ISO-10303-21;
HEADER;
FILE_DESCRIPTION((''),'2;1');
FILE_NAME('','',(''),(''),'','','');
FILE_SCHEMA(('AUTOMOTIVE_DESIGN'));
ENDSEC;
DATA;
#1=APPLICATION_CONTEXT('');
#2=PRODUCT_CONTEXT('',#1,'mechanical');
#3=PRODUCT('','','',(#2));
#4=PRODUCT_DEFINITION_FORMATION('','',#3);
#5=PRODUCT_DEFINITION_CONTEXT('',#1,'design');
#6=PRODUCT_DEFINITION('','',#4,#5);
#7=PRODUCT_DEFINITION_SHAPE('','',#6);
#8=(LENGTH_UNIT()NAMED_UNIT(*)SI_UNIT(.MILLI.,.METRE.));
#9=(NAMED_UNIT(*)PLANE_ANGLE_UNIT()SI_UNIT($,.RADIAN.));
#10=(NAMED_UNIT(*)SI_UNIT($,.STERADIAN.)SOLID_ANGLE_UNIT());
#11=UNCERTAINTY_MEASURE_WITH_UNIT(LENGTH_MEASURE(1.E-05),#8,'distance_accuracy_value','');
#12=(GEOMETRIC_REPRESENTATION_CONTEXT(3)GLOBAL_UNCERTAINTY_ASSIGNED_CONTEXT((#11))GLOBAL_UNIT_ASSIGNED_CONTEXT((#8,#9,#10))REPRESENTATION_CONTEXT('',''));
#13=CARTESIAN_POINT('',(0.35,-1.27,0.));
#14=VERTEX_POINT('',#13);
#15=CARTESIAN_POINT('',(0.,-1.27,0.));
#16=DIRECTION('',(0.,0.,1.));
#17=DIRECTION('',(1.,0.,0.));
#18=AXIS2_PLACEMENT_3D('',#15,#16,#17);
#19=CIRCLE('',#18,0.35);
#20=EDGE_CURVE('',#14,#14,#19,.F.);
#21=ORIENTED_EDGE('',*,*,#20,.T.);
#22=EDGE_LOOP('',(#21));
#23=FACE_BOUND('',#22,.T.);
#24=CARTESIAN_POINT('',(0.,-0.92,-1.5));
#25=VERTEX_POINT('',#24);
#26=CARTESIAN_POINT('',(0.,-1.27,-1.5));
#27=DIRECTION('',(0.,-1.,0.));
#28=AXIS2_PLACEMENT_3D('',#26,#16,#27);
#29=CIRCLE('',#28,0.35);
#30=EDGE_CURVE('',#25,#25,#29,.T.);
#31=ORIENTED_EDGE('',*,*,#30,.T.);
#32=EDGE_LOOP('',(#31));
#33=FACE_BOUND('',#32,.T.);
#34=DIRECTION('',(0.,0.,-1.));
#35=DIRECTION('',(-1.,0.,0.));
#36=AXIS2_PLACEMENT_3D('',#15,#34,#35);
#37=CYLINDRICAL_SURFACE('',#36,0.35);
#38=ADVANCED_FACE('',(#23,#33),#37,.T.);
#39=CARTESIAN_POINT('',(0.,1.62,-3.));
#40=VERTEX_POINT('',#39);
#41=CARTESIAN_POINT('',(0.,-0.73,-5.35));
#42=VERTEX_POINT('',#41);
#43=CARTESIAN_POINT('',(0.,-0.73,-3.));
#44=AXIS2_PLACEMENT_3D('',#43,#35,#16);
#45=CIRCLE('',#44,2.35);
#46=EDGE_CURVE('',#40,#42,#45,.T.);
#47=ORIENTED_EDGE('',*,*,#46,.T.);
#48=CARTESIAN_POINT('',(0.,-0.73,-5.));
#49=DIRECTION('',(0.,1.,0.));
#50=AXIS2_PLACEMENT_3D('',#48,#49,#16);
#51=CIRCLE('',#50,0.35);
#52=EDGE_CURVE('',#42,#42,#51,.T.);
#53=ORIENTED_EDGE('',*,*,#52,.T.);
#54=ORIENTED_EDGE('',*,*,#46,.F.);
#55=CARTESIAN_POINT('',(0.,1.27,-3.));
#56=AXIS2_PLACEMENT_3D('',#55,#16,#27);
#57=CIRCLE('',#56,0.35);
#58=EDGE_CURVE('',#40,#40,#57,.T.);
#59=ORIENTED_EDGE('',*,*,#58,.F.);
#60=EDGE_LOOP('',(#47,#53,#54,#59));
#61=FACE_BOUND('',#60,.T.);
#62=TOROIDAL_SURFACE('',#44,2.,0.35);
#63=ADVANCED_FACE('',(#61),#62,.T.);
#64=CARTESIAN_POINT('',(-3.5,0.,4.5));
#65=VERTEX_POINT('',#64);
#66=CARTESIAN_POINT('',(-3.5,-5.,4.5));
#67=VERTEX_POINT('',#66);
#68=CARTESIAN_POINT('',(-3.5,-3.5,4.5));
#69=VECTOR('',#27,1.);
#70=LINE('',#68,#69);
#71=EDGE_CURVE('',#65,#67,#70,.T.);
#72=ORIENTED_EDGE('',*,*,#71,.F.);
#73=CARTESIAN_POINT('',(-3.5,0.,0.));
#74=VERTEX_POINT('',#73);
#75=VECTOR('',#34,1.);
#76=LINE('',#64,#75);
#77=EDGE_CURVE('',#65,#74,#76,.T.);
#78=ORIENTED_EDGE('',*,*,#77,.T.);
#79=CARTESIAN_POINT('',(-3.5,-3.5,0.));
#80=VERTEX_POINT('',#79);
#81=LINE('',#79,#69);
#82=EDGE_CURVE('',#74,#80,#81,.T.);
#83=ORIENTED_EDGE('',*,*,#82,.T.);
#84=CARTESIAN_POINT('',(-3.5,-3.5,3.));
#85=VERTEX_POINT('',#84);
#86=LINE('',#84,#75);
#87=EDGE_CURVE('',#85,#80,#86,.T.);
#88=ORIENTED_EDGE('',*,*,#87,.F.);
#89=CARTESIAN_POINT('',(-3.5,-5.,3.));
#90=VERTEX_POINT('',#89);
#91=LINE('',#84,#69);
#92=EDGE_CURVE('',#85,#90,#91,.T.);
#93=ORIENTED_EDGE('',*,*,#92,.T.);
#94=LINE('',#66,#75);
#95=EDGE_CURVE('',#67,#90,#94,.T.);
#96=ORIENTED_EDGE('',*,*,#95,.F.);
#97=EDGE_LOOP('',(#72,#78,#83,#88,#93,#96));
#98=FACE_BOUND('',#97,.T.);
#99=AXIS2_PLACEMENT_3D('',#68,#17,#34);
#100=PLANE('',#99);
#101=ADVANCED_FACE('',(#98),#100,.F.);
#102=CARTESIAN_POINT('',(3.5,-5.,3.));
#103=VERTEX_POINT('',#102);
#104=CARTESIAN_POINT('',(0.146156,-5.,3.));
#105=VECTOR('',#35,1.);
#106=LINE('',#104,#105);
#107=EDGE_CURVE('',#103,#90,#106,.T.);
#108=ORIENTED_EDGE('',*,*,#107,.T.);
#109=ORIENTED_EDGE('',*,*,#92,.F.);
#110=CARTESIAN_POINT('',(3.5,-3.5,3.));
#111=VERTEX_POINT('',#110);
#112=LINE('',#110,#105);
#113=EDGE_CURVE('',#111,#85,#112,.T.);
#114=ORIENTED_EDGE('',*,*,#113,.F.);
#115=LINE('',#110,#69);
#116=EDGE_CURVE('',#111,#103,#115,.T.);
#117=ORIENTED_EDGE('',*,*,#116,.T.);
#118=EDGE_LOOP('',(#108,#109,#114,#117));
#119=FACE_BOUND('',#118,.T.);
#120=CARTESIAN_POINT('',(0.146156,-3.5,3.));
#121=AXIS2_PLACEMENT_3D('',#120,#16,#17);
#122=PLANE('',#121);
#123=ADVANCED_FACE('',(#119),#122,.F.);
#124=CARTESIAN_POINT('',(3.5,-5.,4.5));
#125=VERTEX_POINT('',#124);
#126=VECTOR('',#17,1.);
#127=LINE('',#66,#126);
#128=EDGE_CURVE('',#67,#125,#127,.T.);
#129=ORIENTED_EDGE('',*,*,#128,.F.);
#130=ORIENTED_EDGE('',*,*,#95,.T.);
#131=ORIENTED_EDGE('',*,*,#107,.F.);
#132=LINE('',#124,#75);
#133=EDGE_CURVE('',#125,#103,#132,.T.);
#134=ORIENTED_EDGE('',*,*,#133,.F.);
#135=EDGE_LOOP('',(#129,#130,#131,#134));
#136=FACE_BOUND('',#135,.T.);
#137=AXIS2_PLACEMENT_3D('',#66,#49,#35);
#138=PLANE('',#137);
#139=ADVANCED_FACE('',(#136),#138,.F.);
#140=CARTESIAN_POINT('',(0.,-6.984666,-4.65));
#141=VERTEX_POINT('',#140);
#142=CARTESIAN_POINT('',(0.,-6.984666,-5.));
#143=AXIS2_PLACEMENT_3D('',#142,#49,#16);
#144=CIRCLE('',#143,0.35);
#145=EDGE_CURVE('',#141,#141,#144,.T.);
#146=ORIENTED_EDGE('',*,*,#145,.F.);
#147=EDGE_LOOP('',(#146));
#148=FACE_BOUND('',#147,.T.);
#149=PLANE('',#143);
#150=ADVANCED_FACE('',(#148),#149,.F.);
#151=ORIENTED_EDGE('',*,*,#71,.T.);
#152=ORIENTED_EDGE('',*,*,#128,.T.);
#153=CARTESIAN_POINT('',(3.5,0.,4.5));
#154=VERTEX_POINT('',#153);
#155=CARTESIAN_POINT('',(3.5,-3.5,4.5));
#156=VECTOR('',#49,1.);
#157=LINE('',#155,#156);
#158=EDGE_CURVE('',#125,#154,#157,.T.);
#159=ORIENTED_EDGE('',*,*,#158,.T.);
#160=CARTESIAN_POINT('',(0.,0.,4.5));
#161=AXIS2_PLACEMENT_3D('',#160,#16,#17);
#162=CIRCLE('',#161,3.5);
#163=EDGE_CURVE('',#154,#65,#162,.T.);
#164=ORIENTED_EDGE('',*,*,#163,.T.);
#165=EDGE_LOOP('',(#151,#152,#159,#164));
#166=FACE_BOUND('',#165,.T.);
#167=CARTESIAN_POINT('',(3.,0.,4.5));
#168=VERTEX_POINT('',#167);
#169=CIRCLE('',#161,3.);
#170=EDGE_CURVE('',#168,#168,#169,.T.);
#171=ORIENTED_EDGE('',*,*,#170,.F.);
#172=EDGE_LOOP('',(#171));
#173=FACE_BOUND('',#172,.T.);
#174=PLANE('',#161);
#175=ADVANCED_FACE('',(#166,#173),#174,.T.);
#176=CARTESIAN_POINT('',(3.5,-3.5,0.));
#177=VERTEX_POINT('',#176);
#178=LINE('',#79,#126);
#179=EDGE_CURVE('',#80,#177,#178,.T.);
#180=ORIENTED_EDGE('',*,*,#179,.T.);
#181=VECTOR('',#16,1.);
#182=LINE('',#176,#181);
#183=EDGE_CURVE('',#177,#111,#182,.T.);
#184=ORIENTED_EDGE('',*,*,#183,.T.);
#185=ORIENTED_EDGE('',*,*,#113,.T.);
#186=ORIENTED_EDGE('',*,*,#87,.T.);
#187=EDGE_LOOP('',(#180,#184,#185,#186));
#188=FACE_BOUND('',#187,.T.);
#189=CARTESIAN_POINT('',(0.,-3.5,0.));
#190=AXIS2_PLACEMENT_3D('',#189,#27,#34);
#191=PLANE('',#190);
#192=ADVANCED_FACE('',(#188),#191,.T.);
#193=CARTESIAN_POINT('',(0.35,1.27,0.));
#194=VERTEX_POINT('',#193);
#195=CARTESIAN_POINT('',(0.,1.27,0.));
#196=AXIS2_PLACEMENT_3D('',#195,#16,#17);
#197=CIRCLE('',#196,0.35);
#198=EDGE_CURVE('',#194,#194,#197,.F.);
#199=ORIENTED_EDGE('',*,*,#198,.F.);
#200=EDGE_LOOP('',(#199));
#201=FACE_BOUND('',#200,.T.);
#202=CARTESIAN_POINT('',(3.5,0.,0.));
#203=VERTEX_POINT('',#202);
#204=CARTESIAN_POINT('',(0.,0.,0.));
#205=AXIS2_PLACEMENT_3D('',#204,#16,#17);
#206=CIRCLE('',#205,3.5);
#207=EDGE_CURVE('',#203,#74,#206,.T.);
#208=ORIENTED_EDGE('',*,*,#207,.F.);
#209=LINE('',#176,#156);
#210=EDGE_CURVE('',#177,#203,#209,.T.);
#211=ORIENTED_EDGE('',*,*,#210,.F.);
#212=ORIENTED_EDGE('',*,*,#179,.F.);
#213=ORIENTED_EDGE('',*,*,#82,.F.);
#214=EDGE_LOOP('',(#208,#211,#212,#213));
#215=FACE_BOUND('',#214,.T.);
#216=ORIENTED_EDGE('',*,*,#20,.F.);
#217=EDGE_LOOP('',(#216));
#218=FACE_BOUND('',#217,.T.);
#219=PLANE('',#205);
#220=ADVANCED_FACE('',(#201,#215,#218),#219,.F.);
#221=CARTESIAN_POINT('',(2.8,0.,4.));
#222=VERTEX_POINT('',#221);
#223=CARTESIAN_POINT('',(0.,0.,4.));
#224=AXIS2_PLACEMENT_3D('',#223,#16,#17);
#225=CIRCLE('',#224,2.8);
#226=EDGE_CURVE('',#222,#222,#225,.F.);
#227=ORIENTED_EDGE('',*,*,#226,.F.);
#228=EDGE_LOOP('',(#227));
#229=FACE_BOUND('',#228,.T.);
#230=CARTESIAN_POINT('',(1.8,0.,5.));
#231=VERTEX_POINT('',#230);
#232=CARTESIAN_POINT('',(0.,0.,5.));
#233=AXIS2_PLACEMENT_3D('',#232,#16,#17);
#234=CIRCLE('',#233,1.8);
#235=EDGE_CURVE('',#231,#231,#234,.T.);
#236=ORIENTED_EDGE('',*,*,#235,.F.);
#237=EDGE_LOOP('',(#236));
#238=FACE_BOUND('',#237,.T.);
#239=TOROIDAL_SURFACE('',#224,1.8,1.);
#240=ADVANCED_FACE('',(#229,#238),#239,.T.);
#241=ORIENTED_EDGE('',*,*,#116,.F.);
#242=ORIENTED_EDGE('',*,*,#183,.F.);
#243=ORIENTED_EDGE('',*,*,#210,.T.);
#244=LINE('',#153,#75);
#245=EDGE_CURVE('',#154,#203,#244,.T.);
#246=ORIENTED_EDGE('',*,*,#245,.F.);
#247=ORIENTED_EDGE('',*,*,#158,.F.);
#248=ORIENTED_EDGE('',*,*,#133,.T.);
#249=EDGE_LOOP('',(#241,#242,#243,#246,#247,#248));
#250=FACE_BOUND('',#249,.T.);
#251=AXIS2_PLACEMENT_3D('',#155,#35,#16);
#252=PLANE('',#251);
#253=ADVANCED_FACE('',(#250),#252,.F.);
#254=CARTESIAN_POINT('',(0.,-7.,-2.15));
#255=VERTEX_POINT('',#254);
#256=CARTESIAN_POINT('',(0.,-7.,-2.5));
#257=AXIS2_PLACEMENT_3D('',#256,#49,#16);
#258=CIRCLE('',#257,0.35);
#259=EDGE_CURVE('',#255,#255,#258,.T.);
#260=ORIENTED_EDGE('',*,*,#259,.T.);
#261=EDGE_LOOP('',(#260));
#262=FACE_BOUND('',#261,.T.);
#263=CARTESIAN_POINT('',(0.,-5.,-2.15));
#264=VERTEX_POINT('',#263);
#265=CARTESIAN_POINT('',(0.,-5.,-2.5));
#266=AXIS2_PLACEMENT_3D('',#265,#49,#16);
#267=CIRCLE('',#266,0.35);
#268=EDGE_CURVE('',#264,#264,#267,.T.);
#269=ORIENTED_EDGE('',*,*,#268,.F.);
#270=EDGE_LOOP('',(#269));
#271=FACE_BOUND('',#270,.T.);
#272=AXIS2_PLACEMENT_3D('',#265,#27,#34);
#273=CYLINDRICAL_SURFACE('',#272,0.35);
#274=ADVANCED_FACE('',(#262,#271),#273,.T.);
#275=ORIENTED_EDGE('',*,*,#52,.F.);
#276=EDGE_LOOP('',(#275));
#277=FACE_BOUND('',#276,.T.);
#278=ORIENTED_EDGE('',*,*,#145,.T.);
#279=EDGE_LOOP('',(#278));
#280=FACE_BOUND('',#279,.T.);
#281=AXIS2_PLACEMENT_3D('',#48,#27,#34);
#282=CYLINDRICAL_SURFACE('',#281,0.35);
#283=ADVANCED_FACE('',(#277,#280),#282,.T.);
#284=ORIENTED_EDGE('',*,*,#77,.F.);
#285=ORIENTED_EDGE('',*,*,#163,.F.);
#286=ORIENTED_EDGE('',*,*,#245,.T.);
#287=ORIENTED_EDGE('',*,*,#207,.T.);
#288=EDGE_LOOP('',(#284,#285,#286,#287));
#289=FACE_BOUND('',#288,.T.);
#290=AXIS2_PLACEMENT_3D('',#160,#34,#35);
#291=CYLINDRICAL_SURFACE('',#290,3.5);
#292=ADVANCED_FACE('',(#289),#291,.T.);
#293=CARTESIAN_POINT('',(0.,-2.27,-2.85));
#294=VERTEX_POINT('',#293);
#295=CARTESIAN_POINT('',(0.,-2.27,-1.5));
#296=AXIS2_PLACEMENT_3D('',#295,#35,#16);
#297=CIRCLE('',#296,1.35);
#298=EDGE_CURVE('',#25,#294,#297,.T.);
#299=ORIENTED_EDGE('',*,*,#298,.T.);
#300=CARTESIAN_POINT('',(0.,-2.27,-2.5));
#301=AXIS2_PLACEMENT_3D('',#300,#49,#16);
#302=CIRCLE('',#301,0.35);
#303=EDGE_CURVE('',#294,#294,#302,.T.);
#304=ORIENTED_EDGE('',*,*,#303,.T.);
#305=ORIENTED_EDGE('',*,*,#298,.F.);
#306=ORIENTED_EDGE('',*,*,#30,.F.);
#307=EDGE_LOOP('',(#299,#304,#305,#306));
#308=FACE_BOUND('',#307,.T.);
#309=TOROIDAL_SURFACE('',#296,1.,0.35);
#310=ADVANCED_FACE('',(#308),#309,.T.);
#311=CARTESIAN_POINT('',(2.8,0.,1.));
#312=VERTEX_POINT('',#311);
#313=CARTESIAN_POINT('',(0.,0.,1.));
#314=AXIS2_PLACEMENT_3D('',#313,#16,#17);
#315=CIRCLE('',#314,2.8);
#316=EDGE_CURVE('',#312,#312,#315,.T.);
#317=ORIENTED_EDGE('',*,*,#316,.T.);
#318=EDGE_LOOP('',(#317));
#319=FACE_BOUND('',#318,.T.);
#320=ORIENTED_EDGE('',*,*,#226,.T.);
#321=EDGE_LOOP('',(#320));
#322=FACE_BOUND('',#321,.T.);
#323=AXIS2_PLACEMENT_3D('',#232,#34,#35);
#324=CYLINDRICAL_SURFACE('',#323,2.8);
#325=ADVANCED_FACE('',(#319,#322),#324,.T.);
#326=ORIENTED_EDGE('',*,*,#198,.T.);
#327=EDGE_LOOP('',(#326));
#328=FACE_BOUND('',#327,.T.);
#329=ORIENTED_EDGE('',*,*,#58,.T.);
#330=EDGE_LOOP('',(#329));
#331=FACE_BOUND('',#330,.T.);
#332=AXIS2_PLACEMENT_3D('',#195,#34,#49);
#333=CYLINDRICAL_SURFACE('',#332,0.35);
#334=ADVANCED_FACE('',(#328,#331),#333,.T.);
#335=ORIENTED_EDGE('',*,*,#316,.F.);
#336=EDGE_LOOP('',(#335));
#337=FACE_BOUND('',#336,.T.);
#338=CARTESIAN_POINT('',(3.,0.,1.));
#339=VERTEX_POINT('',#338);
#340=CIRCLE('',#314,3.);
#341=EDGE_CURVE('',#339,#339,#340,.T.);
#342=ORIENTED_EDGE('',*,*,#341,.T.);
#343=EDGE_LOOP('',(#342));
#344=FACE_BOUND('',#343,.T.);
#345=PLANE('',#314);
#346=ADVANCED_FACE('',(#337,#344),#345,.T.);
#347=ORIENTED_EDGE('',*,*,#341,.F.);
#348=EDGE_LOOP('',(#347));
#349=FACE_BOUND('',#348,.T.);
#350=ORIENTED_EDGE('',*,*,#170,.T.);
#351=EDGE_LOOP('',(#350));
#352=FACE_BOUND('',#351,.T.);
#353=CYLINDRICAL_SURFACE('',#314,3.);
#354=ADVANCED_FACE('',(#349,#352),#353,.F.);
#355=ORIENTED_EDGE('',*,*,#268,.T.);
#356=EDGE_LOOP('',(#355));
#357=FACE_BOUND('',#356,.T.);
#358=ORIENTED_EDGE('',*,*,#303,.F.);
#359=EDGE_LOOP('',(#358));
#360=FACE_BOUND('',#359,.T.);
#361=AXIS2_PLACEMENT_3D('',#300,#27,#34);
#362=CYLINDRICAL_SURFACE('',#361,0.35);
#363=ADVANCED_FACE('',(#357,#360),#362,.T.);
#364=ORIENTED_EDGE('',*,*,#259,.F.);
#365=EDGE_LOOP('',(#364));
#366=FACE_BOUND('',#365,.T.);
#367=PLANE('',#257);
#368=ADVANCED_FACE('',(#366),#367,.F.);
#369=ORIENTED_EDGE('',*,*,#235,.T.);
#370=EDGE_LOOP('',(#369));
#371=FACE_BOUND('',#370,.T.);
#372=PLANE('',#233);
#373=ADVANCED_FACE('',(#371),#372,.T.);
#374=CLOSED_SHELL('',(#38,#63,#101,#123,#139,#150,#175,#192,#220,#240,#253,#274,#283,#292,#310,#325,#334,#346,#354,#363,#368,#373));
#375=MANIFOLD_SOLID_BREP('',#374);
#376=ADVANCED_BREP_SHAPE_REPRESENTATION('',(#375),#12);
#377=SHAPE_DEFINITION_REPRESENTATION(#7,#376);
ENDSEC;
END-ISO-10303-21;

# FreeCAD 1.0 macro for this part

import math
import FreeCAD as App
import Part
import Sketcher
Q = App.Units.Quantity


def edges_at(feature, points):
    """Names of the edges that pass closest to the given points."""
    edges = feature.Shape.Edges
    near = lambda p: min(range(len(edges)), key=lambda i: edges[i].distToShape(Part.Vertex(*p))[0])
    return sorted({f"Edge{near(p) + 1}" for p in points})

doc = App.newDocument("Part")
body = doc.addObject("PartDesign::Body", "Body")

sketch1 = doc.addObject("Sketcher::SketchObject", "Sketch")
body.addObject(sketch1)
sketch1.AttachmentSupport = (doc.XY_Plane, [""])
sketch1.MapMode = "FlatFace"
sketch1.addGeometry([
    Part.ArcOfCircle(Part.Circle(App.Vector(0, 0, 0), App.Vector(0, 0, 1), 3.5), math.radians(0), math.radians(180)),
    Part.LineSegment(App.Vector(-3.5, 0, 0), App.Vector(-3.5, -5, 0)),
    Part.LineSegment(App.Vector(-3.5, -5, 0), App.Vector(3.5, -5, 0)),
    Part.LineSegment(App.Vector(3.5, -5, 0), App.Vector(3.5, 0, 0)),
], False)
sketch1.addConstraint([
    Sketcher.Constraint("Tangent", 0, 2, 1, 1),
    Sketcher.Constraint("Coincident", 1, 2, 2, 1),
    Sketcher.Constraint("Coincident", 2, 2, 3, 1),
    Sketcher.Constraint("Tangent", 3, 2, 0, 1),
    Sketcher.Constraint("Vertical", 1),
    Sketcher.Constraint("Horizontal", 2),
    Sketcher.Constraint("Vertical", 3),
    Sketcher.Constraint("Coincident", 0, 3, -1, 1),
    Sketcher.Constraint("Radius", 0, Q("3.5 mm")),
    Sketcher.Constraint("DistanceY", 1, 2, 1, 1, Q("5 mm")),
])
pad1 = doc.addObject("PartDesign::Pad", "Pad")
body.addObject(pad1)
pad1.Profile = sketch1
pad1.Length = 4.5

sketch2 = doc.addObject("Sketcher::SketchObject", "Sketch001")
body.addObject(sketch2)
sketch2.AttachmentSupport = (doc.XY_Plane, [""])
sketch2.MapMode = "FlatFace"
sketch2.AttachmentOffset = App.Placement(App.Vector(0, 0, 4.5), App.Rotation())
sketch2.addGeometry(Part.Circle(App.Vector(0, 0, 0), App.Vector(0, 0, 1), 3), False)
sketch2.addConstraint([
    Sketcher.Constraint("Coincident", 0, 3, -1, 1),
    Sketcher.Constraint("Diameter", 0, Q("6 mm")),
])
pocket1 = doc.addObject("PartDesign::Pocket", "Pocket")
body.addObject(pocket1)
pocket1.Profile = sketch2
pocket1.Length = 3.5

sketch3 = doc.addObject("Sketcher::SketchObject", "Sketch002")
body.addObject(sketch3)
sketch3.AttachmentSupport = (doc.XY_Plane, [""])
sketch3.MapMode = "FlatFace"
sketch3.AttachmentOffset = App.Placement(App.Vector(0, 0, 1), App.Rotation())
sketch3.addGeometry(Part.Circle(App.Vector(0, 0, 0), App.Vector(0, 0, 1), 2.8), False)
sketch3.addConstraint([
    Sketcher.Constraint("Coincident", 0, 3, -1, 1),
    Sketcher.Constraint("Diameter", 0, Q("5.6 mm")),
])
pad2 = doc.addObject("PartDesign::Pad", "Pad001")
body.addObject(pad2)
pad2.Profile = sketch3
pad2.Length = 4

sketch4 = doc.addObject("Sketcher::SketchObject", "Sketch003")
body.addObject(sketch4)
sketch4.AttachmentSupport = (doc.XZ_Plane, [""])
sketch4.MapMode = "FlatFace"
sketch4.AttachmentOffset = App.Placement(App.Vector(0, 0, 5), App.Rotation())
sketch4.addGeometry([
    Part.LineSegment(App.Vector(-3.5, 3, 0), App.Vector(-3.5, 0, 0)),
    Part.LineSegment(App.Vector(-3.5, 0, 0), App.Vector(3.5, 0, 0)),
    Part.LineSegment(App.Vector(3.5, 0, 0), App.Vector(3.5, 3, 0)),
    Part.LineSegment(App.Vector(3.5, 3, 0), App.Vector(-3.5, 3, 0)),
], False)
sketch4.addConstraint([
    Sketcher.Constraint("Coincident", 0, 2, 1, 1),
    Sketcher.Constraint("Coincident", 1, 2, 2, 1),
    Sketcher.Constraint("Coincident", 2, 2, 3, 1),
    Sketcher.Constraint("Coincident", 3, 2, 0, 1),
    Sketcher.Constraint("Vertical", 0),
    Sketcher.Constraint("Horizontal", 1),
    Sketcher.Constraint("Vertical", 2),
    Sketcher.Constraint("Horizontal", 3),
    Sketcher.Constraint("Symmetric", 0, 2, 1, 2, -1, 1),
    Sketcher.Constraint("DistanceX", 1, 1, 1, 2, Q("7 mm")),
    Sketcher.Constraint("DistanceY", 0, 2, 0, 1, Q("3 mm")),
])
pocket2 = doc.addObject("PartDesign::Pocket", "Pocket001")
body.addObject(pocket2)
pocket2.Profile = sketch4
pocket2.Length = 1.5

sketch5 = doc.addObject("Sketcher::SketchObject", "Sketch004")
body.addObject(sketch5)
sketch5.AttachmentSupport = (doc.XY_Plane, [""])
sketch5.MapMode = "FlatFace"
sketch5.addGeometry(Part.Circle(App.Vector(0, -1.27, 0), App.Vector(0, 0, 1), 0.35), False)
sketch5.addConstraint([
    Sketcher.Constraint("PointOnObject", 0, 3, -2),
    Sketcher.Constraint("Diameter", 0, Q("0.7 mm")),
    Sketcher.Constraint("DistanceY", 0, 3, -1, 1, Q("1.27 mm")),
])

sketch6 = doc.addObject("Sketcher::SketchObject", "Sketch005")
body.addObject(sketch6)
sketch6.AttachmentSupport = (doc.YZ_Plane, [""])
sketch6.MapMode = "FlatFace"
sketch6.addGeometry([
    Part.LineSegment(App.Vector(-1.3, 0, 0), App.Vector(-1.3, -1.5, 0)),
    Part.ArcOfCircle(Part.Circle(App.Vector(-2.3, -1.5, 0), App.Vector(0, 0, 1), 1), math.radians(-90), math.radians(0)),
    Part.LineSegment(App.Vector(-2.3, -2.5, 0), App.Vector(-7, -2.5, 0)),
], False)
sketch6.addConstraint([
    Sketcher.Constraint("Tangent", 0, 2, 1, 2),
    Sketcher.Constraint("Tangent", 1, 1, 2, 1),
    Sketcher.Constraint("Vertical", 0),
    Sketcher.Constraint("Horizontal", 2),
    Sketcher.Constraint("PointOnObject", 0, 1, -1),
    Sketcher.Constraint("Radius", 1, Q("1 mm")),
    Sketcher.Constraint("DistanceY", 0, 2, 0, 1, Q("1.5 mm")),
    Sketcher.Constraint("DistanceX", 2, 2, -1, 1, Q("7 mm")),
    Sketcher.Constraint("DistanceX", 2, 2, 2, 1, Q("4.73 mm")),
])
doc.recompute()

additivepipe = doc.addObject("PartDesign::AdditivePipe", "AdditivePipe")
body.addObject(additivepipe)
additivepipe.Profile = sketch5
additivepipe.Spine = (sketch6, ["Edge1", "Edge2", "Edge3"])

sketch7 = doc.addObject("Sketcher::SketchObject", "Sketch006")
body.addObject(sketch7)
sketch7.AttachmentSupport = (doc.XY_Plane, [""])
sketch7.MapMode = "FlatFace"
sketch7.addGeometry(Part.Circle(App.Vector(0, 1.27, 0), App.Vector(0, 0, 1), 0.35), False)
sketch7.addConstraint([
    Sketcher.Constraint("PointOnObject", 0, 3, -2),
    Sketcher.Constraint("Diameter", 0, Q("0.7 mm")),
    Sketcher.Constraint("DistanceY", -1, 1, 0, 3, Q("1.27 mm")),
])

sketch8 = doc.addObject("Sketcher::SketchObject", "Sketch007")
body.addObject(sketch8)
sketch8.AttachmentSupport = (doc.YZ_Plane, [""])
sketch8.MapMode = "FlatFace"
sketch8.addGeometry([
    Part.LineSegment(App.Vector(1.3, 0, 0), App.Vector(1.3, -3, 0)),
    Part.ArcOfCircle(Part.Circle(App.Vector(-0.7, -3, 0), App.Vector(0, 0, 1), 2), math.radians(-90), math.radians(0)),
    Part.LineSegment(App.Vector(-0.7, -5, 0), App.Vector(-7, -5, 0)),
], False)
sketch8.addConstraint([
    Sketcher.Constraint("Tangent", 0, 2, 1, 2),
    Sketcher.Constraint("Tangent", 1, 1, 2, 1),
    Sketcher.Constraint("Vertical", 0),
    Sketcher.Constraint("Horizontal", 2),
    Sketcher.Constraint("PointOnObject", 0, 1, -1),
    Sketcher.Constraint("Radius", 1, Q("2 mm")),
    Sketcher.Constraint("DistanceY", 0, 2, 0, 1, Q("3 mm")),
    Sketcher.Constraint("DistanceX", 1, 3, -1, 1, Q("0.73 mm")),
    Sketcher.Constraint("DistanceX", 2, 2, 2, 1, Q("6.254666 mm")),
])
doc.recompute()

additivepipe2 = doc.addObject("PartDesign::AdditivePipe", "AdditivePipe001")
body.addObject(additivepipe2)
additivepipe2.Profile = sketch7
additivepipe2.Spine = (sketch8, ["Edge1", "Edge2", "Edge3"])
doc.recompute()

fillet = doc.addObject("PartDesign::Fillet", "Fillet")
body.addObject(fillet)
fillet.Base = (additivepipe2, edges_at(additivepipe2, [(-2.8, 0, 5)]))
fillet.Radius = 1

doc.recompute()
